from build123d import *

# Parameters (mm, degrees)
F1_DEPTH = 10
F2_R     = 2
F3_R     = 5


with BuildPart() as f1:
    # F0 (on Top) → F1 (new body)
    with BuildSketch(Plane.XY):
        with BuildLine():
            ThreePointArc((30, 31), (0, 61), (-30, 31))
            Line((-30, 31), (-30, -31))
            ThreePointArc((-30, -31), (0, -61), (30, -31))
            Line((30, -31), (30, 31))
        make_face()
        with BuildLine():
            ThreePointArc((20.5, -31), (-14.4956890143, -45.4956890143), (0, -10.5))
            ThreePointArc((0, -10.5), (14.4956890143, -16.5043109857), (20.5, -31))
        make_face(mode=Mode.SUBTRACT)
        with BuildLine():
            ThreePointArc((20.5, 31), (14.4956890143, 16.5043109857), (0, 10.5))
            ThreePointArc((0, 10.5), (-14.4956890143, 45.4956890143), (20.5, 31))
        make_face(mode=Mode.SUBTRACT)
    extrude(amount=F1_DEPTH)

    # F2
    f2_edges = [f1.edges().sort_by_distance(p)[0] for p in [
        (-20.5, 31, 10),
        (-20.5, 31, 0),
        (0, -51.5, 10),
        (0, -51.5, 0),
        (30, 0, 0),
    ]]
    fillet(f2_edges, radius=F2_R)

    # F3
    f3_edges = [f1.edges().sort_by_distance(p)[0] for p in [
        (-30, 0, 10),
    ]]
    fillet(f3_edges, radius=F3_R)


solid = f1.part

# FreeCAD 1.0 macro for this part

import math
import FreeCAD as App
import Part
import Sketcher
from FreeCAD import Vector
Q = App.Units.Quantity


def edges_at(feature, points):
    """Names of the edges that pass closest to the given points."""
    edges = feature.Shape.Edges
    near = lambda p: min(range(len(edges)), key=lambda i: edges[i].distToShape(Part.Vertex(*p))[0])
    return sorted({f"Edge{near(p) + 1}" for p in points})

doc = App.newDocument("Part")
params = doc.addObject("Spreadsheet::Sheet", "Params")
for row, (alias, value) in enumerate([
    ("sketch1_radius", "30 mm"),
    ("sketch1_radius2", "20.5 mm"),
    ("sketch1_height", "62 mm"),
    ("pad1_length", "10 mm"),
    ("fillet_radius", "2 mm"),
    ("fillet2_radius", "5 mm"),
], start=1):
    params.set(f"A{row}", alias)
    params.set(f"B{row}", "=" + value)
    params.setAlias(f"B{row}", alias)

body = doc.addObject("PartDesign::Body", "Body")

sketch1 = doc.addObject("Sketcher::SketchObject", "Sketch")
body.addObject(sketch1)
sketch1.AttachmentSupport = (doc.XY_Plane, [""])
sketch1.MapMode = "FlatFace"
sketch1.addGeometry(Part.ArcOfCircle(Part.Circle(Vector(0, 31, 0), Vector(0, 0, 1), 30), math.radians(0), math.radians(180)), False)
sketch1.addGeometry(Part.LineSegment(Vector(-30, 31, 0), Vector(-30, -31, 0)), False)
sketch1.addGeometry(Part.ArcOfCircle(Part.Circle(Vector(0, -31, 0), Vector(0, 0, 1), 30), math.radians(180), math.radians(360)), False)
sketch1.addGeometry(Part.LineSegment(Vector(30, -31, 0), Vector(30, 31, 0)), False)
sketch1.addGeometry(Part.ArcOfCircle(Part.Circle(Vector(0, -31, 0), Vector(0, 0, 1), 20.5), math.radians(0), math.radians(90)), False)
sketch1.addGeometry(Part.ArcOfCircle(Part.Circle(Vector(0, -31, 0), Vector(0, 0, 1), 20.5), math.radians(90), math.radians(360)), False)
sketch1.addGeometry(Part.ArcOfCircle(Part.Circle(Vector(0, 31, 0), Vector(0, 0, 1), 20.5), math.radians(0), math.radians(270)), False)
sketch1.addGeometry(Part.ArcOfCircle(Part.Circle(Vector(0, 31, 0), Vector(0, 0, 1), 20.5), math.radians(-90), math.radians(0)), False)
sketch1.addConstraint(Sketcher.Constraint("Tangent", 0, 2, 1, 1))
sketch1.addConstraint(Sketcher.Constraint("Tangent", 1, 2, 2, 1))
sketch1.addConstraint(Sketcher.Constraint("Tangent", 2, 2, 3, 1))
sketch1.addConstraint(Sketcher.Constraint("Tangent", 3, 2, 0, 1))
sketch1.addConstraint(Sketcher.Constraint("Tangent", 4, 1, 5, 2))
sketch1.addConstraint(Sketcher.Constraint("Coincident", 5, 1, 4, 2))
sketch1.addConstraint(Sketcher.Constraint("Tangent", 6, 1, 7, 2))
sketch1.addConstraint(Sketcher.Constraint("Coincident", 7, 1, 6, 2))
sketch1.addConstraint(Sketcher.Constraint("Vertical", 1))
sketch1.addConstraint(Sketcher.Constraint("Vertical", 3))
sketch1.addConstraint(Sketcher.Constraint("Coincident", 4, 3, 2, 3))
sketch1.addConstraint(Sketcher.Constraint("Coincident", 6, 3, 0, 3))
sketch1.addConstraint(Sketcher.Constraint("Equal", 5, 6))
sketch1.addConstraint(Sketcher.Constraint("Symmetric", 0, 3, 2, 3, -1, 1))
sketch1.addConstraint(Sketcher.Constraint("PointOnObject", 5, 1, -2))
sketch1.addConstraint(Sketcher.Constraint("PointOnObject", 7, 1, -2))
sketch1.addConstraint(Sketcher.Constraint("Horizontal", 2, 2, 4, 1))
sketch1.addConstraint(Sketcher.Constraint("Horizontal", 3, 2, 6, 1))
sketch1.addConstraint(Sketcher.Constraint("Radius", 0, Q("30 mm")))
sketch1.addConstraint(Sketcher.Constraint("Radius", 4, Q("20.5 mm")))
sketch1.addConstraint(Sketcher.Constraint("DistanceY", 1, 2, 1, 1, Q("62 mm")))
sketch1.setExpression("Constraints[18]", "Params.sketch1_radius")
sketch1.setExpression("Constraints[19]", "Params.sketch1_radius2")
sketch1.setExpression("Constraints[20]", "Params.sketch1_height")
pad1 = doc.addObject("PartDesign::Pad", "Pad")
body.addObject(pad1)
pad1.Profile = sketch1
pad1.setExpression("Length", "Params.pad1_length")
doc.recompute()

fillet = doc.addObject("PartDesign::Fillet", "Fillet")
body.addObject(fillet)
fillet.Base = (pad1, edges_at(pad1, [
    (-14.496, 45.496, 10),
    (-14.496, 45.496, 0),
    (-14.496, -45.496, 10),
    (-14.496, -45.496, 0),
    (30, 0, 0),
]))
fillet.setExpression("Radius", "Params.fillet_radius")
doc.recompute()

fillet2 = doc.addObject("PartDesign::Fillet", "Fillet001")
body.addObject(fillet2)
fillet2.Base = (fillet, edges_at(fillet, [(-30, 0, 10)]))
fillet2.setExpression("Radius", "Params.fillet2_radius")

doc.recompute()
